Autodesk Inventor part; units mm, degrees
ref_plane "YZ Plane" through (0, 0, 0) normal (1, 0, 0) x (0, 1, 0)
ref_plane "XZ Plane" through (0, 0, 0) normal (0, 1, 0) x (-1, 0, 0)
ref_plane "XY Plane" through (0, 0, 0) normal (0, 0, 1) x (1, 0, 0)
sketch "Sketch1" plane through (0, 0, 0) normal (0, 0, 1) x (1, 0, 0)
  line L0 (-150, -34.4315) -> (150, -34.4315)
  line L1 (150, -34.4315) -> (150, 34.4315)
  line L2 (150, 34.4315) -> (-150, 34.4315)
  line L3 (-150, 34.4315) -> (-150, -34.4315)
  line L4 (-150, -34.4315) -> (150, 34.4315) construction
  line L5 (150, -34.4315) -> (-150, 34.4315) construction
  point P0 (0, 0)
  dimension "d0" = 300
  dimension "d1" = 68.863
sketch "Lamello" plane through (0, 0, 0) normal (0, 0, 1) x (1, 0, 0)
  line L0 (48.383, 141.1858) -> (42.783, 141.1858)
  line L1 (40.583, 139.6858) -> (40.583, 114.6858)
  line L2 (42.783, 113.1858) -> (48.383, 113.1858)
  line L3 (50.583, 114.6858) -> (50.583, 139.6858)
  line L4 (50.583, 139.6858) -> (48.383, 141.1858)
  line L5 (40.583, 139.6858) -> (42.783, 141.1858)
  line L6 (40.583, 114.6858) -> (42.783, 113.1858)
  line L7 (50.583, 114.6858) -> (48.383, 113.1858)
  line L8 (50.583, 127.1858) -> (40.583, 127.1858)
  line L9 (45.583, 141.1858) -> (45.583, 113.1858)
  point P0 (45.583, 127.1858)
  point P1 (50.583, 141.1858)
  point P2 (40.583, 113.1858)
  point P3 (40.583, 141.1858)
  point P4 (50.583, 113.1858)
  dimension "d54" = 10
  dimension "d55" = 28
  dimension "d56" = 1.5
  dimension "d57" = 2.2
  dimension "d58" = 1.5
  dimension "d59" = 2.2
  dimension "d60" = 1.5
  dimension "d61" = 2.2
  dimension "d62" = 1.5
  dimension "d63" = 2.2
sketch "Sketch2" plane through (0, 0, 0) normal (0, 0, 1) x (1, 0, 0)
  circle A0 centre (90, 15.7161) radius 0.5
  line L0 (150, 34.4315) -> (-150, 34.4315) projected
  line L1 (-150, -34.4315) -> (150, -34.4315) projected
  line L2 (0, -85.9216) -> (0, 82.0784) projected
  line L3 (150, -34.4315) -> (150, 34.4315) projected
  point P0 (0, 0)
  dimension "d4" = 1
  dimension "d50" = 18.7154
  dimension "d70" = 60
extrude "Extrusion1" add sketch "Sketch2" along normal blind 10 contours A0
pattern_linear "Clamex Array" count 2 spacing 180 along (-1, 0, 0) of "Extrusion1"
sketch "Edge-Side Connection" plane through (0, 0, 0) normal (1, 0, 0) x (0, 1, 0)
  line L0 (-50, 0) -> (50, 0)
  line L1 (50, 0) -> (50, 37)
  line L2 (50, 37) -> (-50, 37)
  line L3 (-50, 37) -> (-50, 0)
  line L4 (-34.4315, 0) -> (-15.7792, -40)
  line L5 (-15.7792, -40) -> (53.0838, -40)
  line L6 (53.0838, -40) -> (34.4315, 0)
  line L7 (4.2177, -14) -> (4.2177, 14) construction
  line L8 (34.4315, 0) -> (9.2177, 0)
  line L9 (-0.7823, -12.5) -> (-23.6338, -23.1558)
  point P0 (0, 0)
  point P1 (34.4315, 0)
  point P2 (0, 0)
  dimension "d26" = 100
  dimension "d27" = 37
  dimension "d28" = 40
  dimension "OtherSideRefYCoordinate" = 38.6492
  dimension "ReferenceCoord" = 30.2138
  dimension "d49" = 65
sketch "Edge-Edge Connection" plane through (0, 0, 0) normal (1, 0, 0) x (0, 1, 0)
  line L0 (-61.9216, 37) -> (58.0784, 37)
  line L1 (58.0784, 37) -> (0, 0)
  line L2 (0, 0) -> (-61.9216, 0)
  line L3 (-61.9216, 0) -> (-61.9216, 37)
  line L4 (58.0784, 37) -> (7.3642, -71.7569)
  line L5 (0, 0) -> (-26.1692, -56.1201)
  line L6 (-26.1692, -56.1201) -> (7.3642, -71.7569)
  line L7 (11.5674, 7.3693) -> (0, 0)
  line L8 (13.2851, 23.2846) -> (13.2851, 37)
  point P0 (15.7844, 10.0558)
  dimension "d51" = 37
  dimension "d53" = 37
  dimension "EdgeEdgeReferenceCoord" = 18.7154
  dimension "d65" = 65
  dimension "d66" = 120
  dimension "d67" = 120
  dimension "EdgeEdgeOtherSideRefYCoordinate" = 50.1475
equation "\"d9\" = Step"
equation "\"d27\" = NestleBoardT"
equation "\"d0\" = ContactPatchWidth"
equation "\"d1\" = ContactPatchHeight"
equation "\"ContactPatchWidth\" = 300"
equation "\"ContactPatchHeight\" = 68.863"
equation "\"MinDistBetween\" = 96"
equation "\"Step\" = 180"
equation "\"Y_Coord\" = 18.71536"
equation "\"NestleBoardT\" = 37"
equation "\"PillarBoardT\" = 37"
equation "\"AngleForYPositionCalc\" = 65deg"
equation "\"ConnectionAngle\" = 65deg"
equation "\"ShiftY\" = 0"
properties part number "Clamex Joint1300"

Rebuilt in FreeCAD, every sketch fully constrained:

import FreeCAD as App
import Part
import Sketcher
from FreeCAD import Vector

doc = App.newDocument("Part")
body = doc.addObject("PartDesign::Body", "Body")
body.AllowCompound = True

# Sketch on XY plane
sketch1 = body.newObject("Sketcher::SketchObject", "Sketch")
sketch1.AttachmentSupport = (doc.getObject("XY_Plane"), [""])
sketch1.MapMode = "FlatFace"
sketch1.addGeometry(Part.Circle(Vector(90, 15.7, 0), Vector(0, 0, 1), 0.5), False)
sketch1.addConstraint([
    Sketcher.Constraint("Diameter", 0, 1.0),
    Sketcher.Constraint("DistanceX", -1, 1, 0, 3, 90.0),
    Sketcher.Constraint("DistanceY", -1, 1, 0, 3, 15.716),
])
pad1 = body.newObject("PartDesign::Pad", "Pad")
pad1.Profile = sketch1
pad1.Length = 10
doc.recompute()

linearpattern = body.newObject("PartDesign::LinearPattern", "LinearPattern")
linearpattern.Originals = [pad1]
linearpattern.Direction = (doc.getObject("X_Axis"), [""])
linearpattern.Mode = "offset"
linearpattern.Offset = 180
linearpattern.Occurrences = 2
linearpattern.Reversed = True
body.Tip = linearpattern

doc.recompute()
